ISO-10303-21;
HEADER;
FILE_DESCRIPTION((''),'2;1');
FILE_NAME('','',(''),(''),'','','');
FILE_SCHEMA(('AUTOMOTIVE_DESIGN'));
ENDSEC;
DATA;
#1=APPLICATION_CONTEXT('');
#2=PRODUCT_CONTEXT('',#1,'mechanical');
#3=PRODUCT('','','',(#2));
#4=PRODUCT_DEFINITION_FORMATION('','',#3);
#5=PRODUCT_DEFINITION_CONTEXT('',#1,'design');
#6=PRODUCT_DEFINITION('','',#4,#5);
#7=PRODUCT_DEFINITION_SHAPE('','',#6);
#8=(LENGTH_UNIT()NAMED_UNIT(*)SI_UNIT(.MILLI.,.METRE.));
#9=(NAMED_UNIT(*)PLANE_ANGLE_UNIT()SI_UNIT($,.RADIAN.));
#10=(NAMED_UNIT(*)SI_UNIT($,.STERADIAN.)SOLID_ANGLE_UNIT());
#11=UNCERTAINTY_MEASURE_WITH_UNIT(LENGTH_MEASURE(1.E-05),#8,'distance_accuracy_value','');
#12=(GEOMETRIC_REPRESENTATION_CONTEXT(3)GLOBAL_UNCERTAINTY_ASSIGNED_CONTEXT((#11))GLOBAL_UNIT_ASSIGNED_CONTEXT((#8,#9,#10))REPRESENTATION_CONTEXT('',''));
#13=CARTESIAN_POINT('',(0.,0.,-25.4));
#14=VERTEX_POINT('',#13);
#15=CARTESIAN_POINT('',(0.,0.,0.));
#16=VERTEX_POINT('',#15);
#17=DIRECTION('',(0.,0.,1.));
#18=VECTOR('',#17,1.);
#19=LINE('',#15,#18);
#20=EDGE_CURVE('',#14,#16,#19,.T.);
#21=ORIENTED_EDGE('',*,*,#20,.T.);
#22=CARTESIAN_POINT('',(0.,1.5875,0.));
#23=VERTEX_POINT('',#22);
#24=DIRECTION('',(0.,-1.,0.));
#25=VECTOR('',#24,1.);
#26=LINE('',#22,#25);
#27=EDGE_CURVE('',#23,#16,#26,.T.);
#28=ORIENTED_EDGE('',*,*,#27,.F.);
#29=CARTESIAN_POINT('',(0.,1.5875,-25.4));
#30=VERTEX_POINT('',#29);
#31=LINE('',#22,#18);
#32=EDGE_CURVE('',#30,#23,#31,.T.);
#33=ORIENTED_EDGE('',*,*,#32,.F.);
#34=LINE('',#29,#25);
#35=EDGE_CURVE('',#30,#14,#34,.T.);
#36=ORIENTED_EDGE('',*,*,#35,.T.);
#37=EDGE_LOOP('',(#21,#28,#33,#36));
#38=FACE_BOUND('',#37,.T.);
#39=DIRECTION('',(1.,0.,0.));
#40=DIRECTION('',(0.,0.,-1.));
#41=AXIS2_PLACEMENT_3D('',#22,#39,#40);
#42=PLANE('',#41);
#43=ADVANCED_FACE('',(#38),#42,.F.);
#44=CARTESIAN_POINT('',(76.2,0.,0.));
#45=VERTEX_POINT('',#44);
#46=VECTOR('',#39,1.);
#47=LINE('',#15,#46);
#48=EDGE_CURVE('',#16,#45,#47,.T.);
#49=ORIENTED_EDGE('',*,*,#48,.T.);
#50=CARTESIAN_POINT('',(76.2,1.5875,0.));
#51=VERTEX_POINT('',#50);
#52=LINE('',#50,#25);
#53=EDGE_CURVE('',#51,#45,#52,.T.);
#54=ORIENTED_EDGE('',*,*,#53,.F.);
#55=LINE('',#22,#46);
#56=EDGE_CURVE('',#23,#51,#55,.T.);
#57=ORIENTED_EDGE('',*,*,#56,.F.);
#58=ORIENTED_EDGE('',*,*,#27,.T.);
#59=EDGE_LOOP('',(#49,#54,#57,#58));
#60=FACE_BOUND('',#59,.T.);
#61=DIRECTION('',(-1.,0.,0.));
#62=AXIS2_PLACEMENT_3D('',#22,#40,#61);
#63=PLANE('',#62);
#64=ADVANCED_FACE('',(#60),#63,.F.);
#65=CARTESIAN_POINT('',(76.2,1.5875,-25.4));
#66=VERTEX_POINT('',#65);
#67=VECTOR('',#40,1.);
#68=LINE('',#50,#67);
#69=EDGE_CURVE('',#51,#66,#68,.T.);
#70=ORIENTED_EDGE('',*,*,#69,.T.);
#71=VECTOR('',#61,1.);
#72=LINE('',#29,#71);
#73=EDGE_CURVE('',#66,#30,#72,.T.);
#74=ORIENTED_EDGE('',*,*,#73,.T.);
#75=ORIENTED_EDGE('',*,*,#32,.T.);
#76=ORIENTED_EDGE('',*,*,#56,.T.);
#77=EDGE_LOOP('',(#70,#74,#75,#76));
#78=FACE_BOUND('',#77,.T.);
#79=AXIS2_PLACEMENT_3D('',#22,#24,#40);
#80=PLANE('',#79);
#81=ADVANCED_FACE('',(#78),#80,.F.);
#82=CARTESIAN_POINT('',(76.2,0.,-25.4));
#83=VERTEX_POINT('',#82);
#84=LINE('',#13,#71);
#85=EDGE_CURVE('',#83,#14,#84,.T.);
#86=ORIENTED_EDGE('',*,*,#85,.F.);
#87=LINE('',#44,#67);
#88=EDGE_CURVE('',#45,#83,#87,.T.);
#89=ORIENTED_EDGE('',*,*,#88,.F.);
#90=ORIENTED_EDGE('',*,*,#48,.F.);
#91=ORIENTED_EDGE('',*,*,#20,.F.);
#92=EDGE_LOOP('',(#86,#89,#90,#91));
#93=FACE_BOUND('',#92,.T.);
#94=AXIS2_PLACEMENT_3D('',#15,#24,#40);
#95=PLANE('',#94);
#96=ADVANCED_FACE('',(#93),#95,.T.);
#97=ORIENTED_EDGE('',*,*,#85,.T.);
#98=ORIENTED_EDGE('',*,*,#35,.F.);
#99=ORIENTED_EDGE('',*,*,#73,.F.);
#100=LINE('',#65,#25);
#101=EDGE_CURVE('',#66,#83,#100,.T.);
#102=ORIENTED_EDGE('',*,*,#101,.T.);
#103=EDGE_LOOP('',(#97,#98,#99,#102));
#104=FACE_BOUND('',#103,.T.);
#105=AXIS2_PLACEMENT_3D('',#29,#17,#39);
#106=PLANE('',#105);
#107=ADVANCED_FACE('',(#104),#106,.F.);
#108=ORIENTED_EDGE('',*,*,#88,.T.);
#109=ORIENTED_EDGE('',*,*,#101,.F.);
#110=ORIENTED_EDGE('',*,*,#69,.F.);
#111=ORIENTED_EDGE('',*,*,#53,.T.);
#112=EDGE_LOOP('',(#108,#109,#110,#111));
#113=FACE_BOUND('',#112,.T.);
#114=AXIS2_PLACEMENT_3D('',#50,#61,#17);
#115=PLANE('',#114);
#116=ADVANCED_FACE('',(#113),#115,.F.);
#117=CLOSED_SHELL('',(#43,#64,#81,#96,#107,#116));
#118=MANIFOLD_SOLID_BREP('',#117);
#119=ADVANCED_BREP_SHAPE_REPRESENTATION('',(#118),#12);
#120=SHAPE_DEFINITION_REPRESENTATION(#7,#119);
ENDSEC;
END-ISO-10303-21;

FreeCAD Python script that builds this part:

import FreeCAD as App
import Part
import Sketcher
from FreeCAD import Vector
Q = App.Units.Quantity


def add_polygon(sketch, points):
    """Adds a closed chain of lines whose ends are joined by coincident constraints."""
    first, n = sketch.GeometryCount, len(points)
    for a, b in zip(points, points[1:] + points[:1]):
        sketch.addGeometry(Part.LineSegment(App.Vector(*a, 0), App.Vector(*b, 0)), False)
    for i in range(n):
        sketch.addConstraint(Sketcher.Constraint("Coincident", first + i, 2, first + (i + 1) % n, 1))

doc = App.newDocument("Part")
body = doc.addObject("PartDesign::Body", "Body")

# Sketch on XZ plane
sketch1 = body.newObject("Sketcher::SketchObject", "Sketch")
sketch1.AttachmentSupport = (doc.getObject("XZ_Plane"), [""])
sketch1.MapMode = "FlatFace"
add_polygon(sketch1, [(0, -25), (0, 0), (76, 0), (76, -25)])  # lines 0-3
sketch1.addConstraint([
    Sketcher.Constraint("Vertical", 0),
    Sketcher.Constraint("Horizontal", 1),
    Sketcher.Constraint("Vertical", 2),
    Sketcher.Constraint("Horizontal", 3),
    Sketcher.Constraint("Coincident", 0, 2, -1, 1),
    Sketcher.Constraint("DistanceX", 1, 1, 1, 2, Q("3 in")),
    Sketcher.Constraint("DistanceY", 0, 1, 0, 2, Q("1 in")),
])
pad1 = body.newObject("PartDesign::Pad", "Pad")
pad1.Profile = sketch1
pad1.Length = Q("0.0625 in")
pad1.Reversed = True

doc.recompute()
